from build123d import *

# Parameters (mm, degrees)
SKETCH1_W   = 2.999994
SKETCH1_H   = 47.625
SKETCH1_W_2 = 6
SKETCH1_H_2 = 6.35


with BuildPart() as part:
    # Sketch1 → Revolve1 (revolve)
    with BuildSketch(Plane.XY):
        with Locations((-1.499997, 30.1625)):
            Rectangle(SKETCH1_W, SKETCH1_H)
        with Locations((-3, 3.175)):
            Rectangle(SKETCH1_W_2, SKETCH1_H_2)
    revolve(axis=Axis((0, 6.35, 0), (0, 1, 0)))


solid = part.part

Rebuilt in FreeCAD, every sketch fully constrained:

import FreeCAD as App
import Part
import Sketcher
from FreeCAD import Vector
Q = App.Units.Quantity


def add_polygon(sketch, points):
    """Adds a closed chain of lines whose ends are joined by coincident constraints."""
    first, n = sketch.GeometryCount, len(points)
    for a, b in zip(points, points[1:] + points[:1]):
        sketch.addGeometry(Part.LineSegment(App.Vector(*a, 0), App.Vector(*b, 0)), False)
    for i in range(n):
        sketch.addConstraint(Sketcher.Constraint("Coincident", first + i, 2, first + (i + 1) % n, 1))

doc = App.newDocument("Part")
params = doc.addObject("Spreadsheet::Sheet", "Params")
for row, (alias, value) in enumerate([
    ("sketch1_height", "0.25 in"),
    ("sketch1_height2", "1.875 in"),
    ("revolution_angle", "360 deg"),
], start=1):
    params.set(f"A{row}", alias)
    params.set(f"B{row}", "=" + value)
    params.setAlias(f"B{row}", alias)

body = doc.addObject("PartDesign::Body", "Body")

# Sketch on XY plane
sketch1 = doc.addObject("Sketcher::SketchObject", "Sketch")
body.addObject(sketch1)
sketch1.AttachmentSupport = (doc.XY_Plane, [""])
sketch1.MapMode = "FlatFace"
add_polygon(sketch1, [(-3, 54), (-3, 6.3), (-6, 6.3), (-6, 0), (0, 0), (0, 54)])  # lines 0-5
sketch1.addConstraint(Sketcher.Constraint("Vertical", 0))
sketch1.addConstraint(Sketcher.Constraint("Horizontal", 1))
sketch1.addConstraint(Sketcher.Constraint("Vertical", 2))
sketch1.addConstraint(Sketcher.Constraint("Horizontal", 3))
sketch1.addConstraint(Sketcher.Constraint("Vertical", 4))
sketch1.addConstraint(Sketcher.Constraint("Horizontal", 5))
sketch1.addConstraint(Sketcher.Constraint("Coincident", 3, 2, -1, 1))
sketch1.addConstraint(Sketcher.Constraint("DistanceY", 2, 2, 2, 1, Q("0.25 in")))
sketch1.addConstraint(Sketcher.Constraint("DistanceY", 0, 2, 0, 1, Q("1.875 in")))
sketch1.addConstraint(Sketcher.Constraint("DistanceX", 3, 1, 3, 2, 6.0))
sketch1.addConstraint(Sketcher.Constraint("DistanceX", 1, 2, 1, 1, 3.000006))
sketch1.setExpression("Constraints[13]", "Params.sketch1_height")
sketch1.setExpression("Constraints[14]", "Params.sketch1_height2")
revolution = doc.addObject("PartDesign::Revolution", "Revolution")
body.addObject(revolution)
revolution.Profile = sketch1
revolution.ReferenceAxis = (sketch1, ["V_Axis"])
revolution.setExpression("Angle", "Params.revolution_angle")

doc.recompute()
